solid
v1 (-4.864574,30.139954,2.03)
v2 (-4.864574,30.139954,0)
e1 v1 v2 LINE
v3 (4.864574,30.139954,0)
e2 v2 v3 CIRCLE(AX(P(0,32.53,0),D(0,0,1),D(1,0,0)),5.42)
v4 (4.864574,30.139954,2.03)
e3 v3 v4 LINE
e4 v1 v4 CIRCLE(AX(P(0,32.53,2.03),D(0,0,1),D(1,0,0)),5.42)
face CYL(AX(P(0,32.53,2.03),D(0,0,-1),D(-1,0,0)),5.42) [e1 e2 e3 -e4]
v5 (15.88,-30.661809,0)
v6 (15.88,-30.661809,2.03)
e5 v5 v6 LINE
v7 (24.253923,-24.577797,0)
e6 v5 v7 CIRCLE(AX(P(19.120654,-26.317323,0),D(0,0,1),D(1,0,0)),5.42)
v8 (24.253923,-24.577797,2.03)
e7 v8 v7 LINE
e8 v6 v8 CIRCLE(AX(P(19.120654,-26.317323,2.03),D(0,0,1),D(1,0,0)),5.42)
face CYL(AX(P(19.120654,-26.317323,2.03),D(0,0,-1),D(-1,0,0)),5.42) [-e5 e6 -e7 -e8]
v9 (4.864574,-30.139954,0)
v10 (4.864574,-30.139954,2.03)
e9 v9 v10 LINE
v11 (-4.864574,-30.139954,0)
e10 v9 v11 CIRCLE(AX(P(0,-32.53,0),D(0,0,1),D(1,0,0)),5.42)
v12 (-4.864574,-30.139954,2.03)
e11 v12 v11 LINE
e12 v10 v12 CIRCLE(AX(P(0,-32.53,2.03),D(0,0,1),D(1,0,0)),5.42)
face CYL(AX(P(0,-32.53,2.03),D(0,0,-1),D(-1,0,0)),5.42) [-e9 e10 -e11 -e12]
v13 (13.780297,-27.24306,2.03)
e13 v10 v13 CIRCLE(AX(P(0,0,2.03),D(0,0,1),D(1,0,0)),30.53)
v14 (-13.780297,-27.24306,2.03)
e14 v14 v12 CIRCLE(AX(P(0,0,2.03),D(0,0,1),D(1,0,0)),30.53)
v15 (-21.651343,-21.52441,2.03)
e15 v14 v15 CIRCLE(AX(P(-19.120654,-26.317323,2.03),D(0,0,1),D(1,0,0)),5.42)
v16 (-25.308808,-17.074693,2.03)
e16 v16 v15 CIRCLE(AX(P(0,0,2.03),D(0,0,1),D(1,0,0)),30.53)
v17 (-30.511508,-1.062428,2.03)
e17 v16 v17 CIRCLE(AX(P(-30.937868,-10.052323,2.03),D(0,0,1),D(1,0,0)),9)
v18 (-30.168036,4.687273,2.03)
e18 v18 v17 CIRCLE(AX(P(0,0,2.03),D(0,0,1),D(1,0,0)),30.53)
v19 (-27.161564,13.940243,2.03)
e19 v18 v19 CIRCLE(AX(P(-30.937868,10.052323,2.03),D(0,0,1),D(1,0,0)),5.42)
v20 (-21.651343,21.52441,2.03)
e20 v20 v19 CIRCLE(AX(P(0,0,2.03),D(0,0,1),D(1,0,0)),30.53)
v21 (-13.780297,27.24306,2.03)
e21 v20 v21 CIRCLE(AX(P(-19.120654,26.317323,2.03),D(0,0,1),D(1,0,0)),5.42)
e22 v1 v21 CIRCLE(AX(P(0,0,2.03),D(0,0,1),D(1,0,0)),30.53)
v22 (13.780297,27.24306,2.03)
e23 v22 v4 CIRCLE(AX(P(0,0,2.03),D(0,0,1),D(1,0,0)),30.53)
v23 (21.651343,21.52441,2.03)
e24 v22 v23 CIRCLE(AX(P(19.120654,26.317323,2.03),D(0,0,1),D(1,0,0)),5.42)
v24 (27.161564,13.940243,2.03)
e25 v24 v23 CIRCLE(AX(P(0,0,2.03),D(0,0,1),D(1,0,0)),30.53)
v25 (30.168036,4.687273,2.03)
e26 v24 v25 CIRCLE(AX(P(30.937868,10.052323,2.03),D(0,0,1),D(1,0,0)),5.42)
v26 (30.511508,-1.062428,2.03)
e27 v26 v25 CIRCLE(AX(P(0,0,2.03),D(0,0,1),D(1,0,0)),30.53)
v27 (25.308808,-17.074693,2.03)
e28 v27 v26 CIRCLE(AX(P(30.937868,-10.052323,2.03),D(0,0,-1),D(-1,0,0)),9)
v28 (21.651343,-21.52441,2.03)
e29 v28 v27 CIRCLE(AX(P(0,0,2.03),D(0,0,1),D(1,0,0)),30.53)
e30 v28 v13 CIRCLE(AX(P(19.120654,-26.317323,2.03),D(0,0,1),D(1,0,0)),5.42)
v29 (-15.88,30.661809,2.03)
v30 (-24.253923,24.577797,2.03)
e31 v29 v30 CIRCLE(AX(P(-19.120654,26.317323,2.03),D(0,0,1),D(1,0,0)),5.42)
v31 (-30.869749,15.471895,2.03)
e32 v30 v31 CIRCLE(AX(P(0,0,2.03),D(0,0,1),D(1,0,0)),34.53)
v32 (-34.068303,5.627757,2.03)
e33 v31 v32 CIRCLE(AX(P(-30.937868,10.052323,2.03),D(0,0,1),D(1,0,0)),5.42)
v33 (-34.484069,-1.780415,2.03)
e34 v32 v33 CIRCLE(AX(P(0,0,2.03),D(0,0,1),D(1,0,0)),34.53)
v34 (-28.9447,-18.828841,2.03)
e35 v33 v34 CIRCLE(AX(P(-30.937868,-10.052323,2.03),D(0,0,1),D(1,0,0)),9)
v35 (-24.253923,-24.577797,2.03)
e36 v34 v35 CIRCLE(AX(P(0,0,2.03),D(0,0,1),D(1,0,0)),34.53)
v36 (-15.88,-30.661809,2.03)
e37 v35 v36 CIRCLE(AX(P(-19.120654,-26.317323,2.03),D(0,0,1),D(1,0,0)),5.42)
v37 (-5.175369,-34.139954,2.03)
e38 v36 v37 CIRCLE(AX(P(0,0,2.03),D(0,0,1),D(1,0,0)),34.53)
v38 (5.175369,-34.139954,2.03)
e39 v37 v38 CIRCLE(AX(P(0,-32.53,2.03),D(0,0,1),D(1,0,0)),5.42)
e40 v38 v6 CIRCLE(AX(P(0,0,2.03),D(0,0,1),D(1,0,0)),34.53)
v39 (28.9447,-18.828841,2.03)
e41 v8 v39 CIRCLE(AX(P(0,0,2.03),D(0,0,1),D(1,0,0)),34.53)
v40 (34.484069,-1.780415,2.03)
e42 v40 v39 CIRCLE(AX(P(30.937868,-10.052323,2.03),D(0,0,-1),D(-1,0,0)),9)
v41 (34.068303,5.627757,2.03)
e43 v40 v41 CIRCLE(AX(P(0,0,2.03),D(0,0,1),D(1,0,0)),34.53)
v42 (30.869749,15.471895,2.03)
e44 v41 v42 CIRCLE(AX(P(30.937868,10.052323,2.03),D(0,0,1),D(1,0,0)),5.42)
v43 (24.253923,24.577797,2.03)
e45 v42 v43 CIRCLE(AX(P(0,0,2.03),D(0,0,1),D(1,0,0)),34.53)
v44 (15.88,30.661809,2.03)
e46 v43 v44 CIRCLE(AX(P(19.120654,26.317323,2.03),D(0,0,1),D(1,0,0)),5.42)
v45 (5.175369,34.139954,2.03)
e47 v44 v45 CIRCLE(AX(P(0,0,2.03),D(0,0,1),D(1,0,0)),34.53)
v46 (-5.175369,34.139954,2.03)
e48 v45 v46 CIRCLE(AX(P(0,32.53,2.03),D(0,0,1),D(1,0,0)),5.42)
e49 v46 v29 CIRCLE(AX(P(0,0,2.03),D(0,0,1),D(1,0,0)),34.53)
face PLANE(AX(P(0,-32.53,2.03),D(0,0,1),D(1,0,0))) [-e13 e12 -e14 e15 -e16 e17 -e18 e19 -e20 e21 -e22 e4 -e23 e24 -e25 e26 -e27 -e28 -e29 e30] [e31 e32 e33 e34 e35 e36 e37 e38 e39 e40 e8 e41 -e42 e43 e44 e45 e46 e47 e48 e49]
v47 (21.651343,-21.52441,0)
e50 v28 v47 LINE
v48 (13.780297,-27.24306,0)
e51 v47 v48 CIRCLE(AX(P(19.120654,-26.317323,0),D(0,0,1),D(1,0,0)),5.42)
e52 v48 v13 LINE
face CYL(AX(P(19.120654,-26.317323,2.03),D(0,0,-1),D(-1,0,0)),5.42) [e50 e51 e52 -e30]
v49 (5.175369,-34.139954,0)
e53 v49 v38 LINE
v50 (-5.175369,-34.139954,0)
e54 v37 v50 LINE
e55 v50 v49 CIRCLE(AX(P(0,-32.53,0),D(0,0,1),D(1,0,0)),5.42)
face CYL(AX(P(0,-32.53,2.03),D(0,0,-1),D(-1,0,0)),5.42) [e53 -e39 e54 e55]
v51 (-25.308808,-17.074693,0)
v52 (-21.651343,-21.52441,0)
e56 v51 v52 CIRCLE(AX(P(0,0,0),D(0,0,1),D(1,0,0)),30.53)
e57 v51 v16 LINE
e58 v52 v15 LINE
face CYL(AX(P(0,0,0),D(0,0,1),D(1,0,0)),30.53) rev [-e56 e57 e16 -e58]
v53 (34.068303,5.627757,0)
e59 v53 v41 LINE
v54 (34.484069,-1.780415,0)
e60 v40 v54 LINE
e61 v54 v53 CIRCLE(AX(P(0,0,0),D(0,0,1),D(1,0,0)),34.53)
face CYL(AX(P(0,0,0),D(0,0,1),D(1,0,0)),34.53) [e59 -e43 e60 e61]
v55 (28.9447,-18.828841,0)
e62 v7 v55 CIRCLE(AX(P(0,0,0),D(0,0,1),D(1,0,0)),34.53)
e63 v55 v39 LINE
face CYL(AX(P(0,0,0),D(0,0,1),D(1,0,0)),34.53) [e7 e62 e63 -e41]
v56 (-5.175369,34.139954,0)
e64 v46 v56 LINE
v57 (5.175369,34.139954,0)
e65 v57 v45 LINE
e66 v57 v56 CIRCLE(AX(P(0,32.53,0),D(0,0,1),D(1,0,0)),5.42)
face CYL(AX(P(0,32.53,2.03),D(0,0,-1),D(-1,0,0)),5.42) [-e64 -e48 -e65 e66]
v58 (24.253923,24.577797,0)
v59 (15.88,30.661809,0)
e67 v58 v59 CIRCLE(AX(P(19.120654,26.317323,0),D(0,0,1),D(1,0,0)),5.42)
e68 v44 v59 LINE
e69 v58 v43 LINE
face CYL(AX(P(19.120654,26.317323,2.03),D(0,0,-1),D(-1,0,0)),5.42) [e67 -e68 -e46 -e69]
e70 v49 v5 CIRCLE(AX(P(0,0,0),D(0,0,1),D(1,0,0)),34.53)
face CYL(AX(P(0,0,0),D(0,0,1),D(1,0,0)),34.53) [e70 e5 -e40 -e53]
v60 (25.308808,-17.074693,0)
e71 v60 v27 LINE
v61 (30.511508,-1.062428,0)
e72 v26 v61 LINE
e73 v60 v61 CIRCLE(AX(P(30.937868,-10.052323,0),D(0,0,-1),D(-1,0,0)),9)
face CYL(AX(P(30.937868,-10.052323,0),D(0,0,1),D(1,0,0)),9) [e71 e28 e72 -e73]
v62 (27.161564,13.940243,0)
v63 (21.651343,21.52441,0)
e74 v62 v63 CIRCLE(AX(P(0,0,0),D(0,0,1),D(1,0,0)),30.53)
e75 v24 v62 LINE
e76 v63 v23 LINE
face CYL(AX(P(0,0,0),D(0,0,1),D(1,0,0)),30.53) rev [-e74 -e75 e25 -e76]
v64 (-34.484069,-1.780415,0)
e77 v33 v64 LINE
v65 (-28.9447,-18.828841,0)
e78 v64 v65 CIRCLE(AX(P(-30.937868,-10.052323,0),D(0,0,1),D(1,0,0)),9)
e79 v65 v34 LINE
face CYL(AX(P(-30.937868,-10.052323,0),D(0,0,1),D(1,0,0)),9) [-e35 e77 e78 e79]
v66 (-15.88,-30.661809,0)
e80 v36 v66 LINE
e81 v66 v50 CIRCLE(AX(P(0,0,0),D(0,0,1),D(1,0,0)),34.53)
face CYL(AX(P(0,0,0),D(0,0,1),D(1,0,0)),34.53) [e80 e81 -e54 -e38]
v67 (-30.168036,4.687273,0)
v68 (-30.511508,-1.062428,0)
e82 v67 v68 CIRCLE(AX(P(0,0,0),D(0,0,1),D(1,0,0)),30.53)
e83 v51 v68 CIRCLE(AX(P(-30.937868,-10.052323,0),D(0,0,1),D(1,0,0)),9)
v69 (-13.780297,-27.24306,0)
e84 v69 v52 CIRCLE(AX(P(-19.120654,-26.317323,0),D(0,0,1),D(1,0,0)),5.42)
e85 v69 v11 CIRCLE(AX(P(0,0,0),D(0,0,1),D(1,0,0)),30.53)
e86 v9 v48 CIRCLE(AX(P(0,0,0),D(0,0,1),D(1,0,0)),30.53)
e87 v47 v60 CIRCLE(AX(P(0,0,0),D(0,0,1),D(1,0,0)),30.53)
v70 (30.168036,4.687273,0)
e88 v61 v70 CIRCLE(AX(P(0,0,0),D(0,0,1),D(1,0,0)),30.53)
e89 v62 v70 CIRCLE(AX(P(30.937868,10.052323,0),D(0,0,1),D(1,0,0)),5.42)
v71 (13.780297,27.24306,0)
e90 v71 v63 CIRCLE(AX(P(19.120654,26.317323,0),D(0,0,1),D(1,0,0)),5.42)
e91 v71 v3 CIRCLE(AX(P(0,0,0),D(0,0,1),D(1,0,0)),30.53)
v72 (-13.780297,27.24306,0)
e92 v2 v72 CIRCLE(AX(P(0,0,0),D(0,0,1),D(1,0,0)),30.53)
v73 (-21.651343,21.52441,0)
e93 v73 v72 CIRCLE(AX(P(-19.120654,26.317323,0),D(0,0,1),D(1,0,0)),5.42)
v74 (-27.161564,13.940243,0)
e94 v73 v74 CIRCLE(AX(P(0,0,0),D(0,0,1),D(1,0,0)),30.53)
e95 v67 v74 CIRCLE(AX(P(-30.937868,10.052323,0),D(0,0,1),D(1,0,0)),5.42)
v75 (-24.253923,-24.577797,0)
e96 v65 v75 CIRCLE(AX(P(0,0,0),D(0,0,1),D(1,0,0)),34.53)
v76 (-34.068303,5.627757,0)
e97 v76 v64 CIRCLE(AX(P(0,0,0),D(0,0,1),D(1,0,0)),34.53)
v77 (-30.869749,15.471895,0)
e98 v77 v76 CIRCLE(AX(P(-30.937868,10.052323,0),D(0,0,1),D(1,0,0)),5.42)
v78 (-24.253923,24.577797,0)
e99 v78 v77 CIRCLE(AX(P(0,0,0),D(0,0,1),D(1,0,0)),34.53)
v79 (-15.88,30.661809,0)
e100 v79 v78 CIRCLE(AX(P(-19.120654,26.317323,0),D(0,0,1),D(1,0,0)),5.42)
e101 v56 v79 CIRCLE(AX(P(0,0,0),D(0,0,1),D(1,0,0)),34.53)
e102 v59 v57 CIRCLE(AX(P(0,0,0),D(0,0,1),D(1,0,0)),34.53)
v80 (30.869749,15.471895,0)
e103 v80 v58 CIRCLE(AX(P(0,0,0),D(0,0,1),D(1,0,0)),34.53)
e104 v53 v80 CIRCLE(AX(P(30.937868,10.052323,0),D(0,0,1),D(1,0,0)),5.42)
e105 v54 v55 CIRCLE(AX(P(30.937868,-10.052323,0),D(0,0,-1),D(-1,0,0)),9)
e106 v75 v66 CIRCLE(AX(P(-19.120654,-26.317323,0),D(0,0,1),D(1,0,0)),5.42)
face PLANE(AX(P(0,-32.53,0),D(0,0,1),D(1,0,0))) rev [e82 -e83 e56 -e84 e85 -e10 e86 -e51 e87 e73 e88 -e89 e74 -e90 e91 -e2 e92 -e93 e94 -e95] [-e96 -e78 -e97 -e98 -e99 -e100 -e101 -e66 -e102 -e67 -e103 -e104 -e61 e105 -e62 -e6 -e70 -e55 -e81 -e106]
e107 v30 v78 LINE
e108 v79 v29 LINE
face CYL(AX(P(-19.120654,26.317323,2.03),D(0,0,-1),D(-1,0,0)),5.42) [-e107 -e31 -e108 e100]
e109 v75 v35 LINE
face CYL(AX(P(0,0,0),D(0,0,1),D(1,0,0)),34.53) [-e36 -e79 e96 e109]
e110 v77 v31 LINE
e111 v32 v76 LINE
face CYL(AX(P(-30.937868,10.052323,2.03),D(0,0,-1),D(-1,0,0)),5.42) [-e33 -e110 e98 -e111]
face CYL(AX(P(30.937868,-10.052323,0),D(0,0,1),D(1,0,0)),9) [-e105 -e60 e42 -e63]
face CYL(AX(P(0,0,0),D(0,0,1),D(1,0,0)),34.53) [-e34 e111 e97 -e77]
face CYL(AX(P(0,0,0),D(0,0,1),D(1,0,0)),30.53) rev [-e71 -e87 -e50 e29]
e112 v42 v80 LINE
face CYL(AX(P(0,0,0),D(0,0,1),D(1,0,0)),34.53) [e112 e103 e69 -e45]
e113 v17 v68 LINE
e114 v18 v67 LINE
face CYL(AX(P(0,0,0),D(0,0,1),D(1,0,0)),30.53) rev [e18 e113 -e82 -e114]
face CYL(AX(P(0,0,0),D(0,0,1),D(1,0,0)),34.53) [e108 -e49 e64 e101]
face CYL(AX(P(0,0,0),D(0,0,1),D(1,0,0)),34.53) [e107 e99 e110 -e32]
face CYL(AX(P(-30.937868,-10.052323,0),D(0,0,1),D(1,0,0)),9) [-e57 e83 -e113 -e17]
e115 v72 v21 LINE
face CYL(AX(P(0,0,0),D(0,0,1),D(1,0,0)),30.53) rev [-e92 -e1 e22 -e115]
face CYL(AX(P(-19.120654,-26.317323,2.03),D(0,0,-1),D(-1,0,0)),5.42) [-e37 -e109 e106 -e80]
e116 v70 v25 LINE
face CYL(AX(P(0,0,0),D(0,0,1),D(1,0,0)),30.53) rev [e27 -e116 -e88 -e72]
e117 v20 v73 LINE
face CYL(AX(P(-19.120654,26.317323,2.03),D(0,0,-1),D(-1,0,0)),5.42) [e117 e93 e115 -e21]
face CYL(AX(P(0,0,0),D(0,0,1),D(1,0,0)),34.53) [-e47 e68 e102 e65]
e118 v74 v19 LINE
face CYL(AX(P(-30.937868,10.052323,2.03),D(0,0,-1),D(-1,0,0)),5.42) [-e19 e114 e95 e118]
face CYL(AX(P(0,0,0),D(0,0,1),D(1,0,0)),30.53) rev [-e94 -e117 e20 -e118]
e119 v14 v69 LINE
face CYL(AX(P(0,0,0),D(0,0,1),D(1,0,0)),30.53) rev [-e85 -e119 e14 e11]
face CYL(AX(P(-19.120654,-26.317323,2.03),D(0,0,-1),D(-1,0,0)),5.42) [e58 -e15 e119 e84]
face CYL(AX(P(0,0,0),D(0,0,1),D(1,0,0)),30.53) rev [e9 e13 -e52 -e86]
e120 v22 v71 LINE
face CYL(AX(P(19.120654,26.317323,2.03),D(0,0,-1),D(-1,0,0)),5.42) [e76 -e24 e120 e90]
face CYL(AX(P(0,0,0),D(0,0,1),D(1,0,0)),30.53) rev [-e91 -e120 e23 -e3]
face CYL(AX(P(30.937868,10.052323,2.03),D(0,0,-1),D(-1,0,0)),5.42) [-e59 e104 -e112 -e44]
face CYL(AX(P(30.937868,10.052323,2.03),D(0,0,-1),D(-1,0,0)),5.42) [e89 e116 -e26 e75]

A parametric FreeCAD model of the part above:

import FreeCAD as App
import Part
import Sketcher
Q = App.Units.Quantity

doc = App.newDocument("Part")
body = doc.addObject("PartDesign::Body", "Body")

# Sketch on XY plane
sketch1 = doc.addObject("Sketcher::SketchObject", "Sketch")
body.addObject(sketch1)
sketch1.AttachmentSupport = (doc.XY_Plane, [""])
sketch1.MapMode = "FlatFace"
sketch1.addGeometry(Part.Circle(App.Vector(0, -33, 0), App.Vector(0, 0, 1), 5), False)
sketch1.addConstraint(Sketcher.Constraint("PointOnObject", 0, 3, -2))
sketch1.addConstraint(Sketcher.Constraint("Diameter", 0, Q("10.84 mm")))
sketch1.addConstraint(Sketcher.Constraint("DistanceY", 0, 3, -1, 1, Q("32.53 mm")))
pad1 = doc.addObject("PartDesign::Pad", "Pad")
body.addObject(pad1)
pad1.Profile = sketch1
pad1.Length = 2.03
body2 = doc.addObject("PartDesign::Body", "Body001")

# Sketch on XY plane
sketch2 = doc.addObject("Sketcher::SketchObject", "Sketch001")
body2.addObject(sketch2)
sketch2.AttachmentSupport = (doc.getObject("XY_Plane001"), [""])
sketch2.MapMode = "FlatFace"
sketch2.addGeometry(Part.Circle(App.Vector(-19, -26, 0), App.Vector(0, 0, 1), 5), False)
sketch2.addConstraint(Sketcher.Constraint("Diameter", 0, Q("10.84 mm")))
sketch2.addConstraint(Sketcher.Constraint("DistanceX", 0, 3, -1, 1, Q("19.120654 mm")))
sketch2.addConstraint(Sketcher.Constraint("DistanceY", 0, 3, -1, 1, Q("26.317323 mm")))
pad2 = doc.addObject("PartDesign::Pad", "Pad001")
body2.addObject(pad2)
pad2.Profile = sketch2
pad2.Length = 2.03
body3 = doc.addObject("PartDesign::Body", "Body002")

# Sketch on XY plane
sketch3 = doc.addObject("Sketcher::SketchObject", "Sketch002")
body3.addObject(sketch3)
sketch3.AttachmentSupport = (doc.getObject("XY_Plane002"), [""])
sketch3.MapMode = "FlatFace"
sketch3.addGeometry(Part.Circle(App.Vector(-31, -10, 0), App.Vector(0, 0, 1), 5), False)
sketch3.addConstraint(Sketcher.Constraint("Diameter", 0, Q("10.84 mm")))
sketch3.addConstraint(Sketcher.Constraint("DistanceX", 0, 3, -1, 1, Q("30.937868 mm")))
sketch3.addConstraint(Sketcher.Constraint("DistanceY", 0, 3, -1, 1, Q("10.052323 mm")))
pad3 = doc.addObject("PartDesign::Pad", "Pad002")
body3.addObject(pad3)
pad3.Profile = sketch3
pad3.Length = 2.03
body4 = doc.addObject("PartDesign::Body", "Body003")

# Sketch on XY plane
sketch4 = doc.addObject("Sketcher::SketchObject", "Sketch003")
body4.addObject(sketch4)
sketch4.AttachmentSupport = (doc.getObject("XY_Plane003"), [""])
sketch4.MapMode = "FlatFace"
sketch4.addGeometry(Part.Circle(App.Vector(-31, 10, 0), App.Vector(0, 0, 1), 5), False)
sketch4.addConstraint(Sketcher.Constraint("Diameter", 0, Q("10.84 mm")))
sketch4.addConstraint(Sketcher.Constraint("DistanceX", 0, 3, -1, 1, Q("30.937868 mm")))
sketch4.addConstraint(Sketcher.Constraint("DistanceY", -1, 1, 0, 3, Q("10.052323 mm")))
pad4 = doc.addObject("PartDesign::Pad", "Pad003")
body4.addObject(pad4)
pad4.Profile = sketch4
pad4.Length = 2.03
body5 = doc.addObject("PartDesign::Body", "Body004")

# Sketch on XY plane
sketch5 = doc.addObject("Sketcher::SketchObject", "Sketch004")
body5.addObject(sketch5)
sketch5.AttachmentSupport = (doc.getObject("XY_Plane004"), [""])
sketch5.MapMode = "FlatFace"
sketch5.addGeometry(Part.Circle(App.Vector(-19, 26, 0), App.Vector(0, 0, 1), 5), False)
sketch5.addConstraint(Sketcher.Constraint("Diameter", 0, Q("10.84 mm")))
sketch5.addConstraint(Sketcher.Constraint("DistanceX", 0, 3, -1, 1, Q("19.120654 mm")))
sketch5.addConstraint(Sketcher.Constraint("DistanceY", -1, 1, 0, 3, Q("26.317323 mm")))
pad5 = doc.addObject("PartDesign::Pad", "Pad004")
body5.addObject(pad5)
pad5.Profile = sketch5
pad5.Length = 2.03
body6 = doc.addObject("PartDesign::Body", "Body005")

# Sketch on XY plane
sketch6 = doc.addObject("Sketcher::SketchObject", "Sketch005")
body6.addObject(sketch6)
sketch6.AttachmentSupport = (doc.getObject("XY_Plane005"), [""])
sketch6.MapMode = "FlatFace"
sketch6.addGeometry(Part.Circle(App.Vector(0, 33, 0), App.Vector(0, 0, 1), 5), False)
sketch6.addConstraint(Sketcher.Constraint("PointOnObject", 0, 3, -2))
sketch6.addConstraint(Sketcher.Constraint("Diameter", 0, Q("10.84 mm")))
sketch6.addConstraint(Sketcher.Constraint("DistanceY", -1, 1, 0, 3, Q("32.53 mm")))
pad6 = doc.addObject("PartDesign::Pad", "Pad005")
body6.addObject(pad6)
pad6.Profile = sketch6
pad6.Length = 2.03
body7 = doc.addObject("PartDesign::Body", "Body006")

# Sketch on XY plane
sketch7 = doc.addObject("Sketcher::SketchObject", "Sketch006")
body7.addObject(sketch7)
sketch7.AttachmentSupport = (doc.getObject("XY_Plane006"), [""])
sketch7.MapMode = "FlatFace"
sketch7.addGeometry(Part.Circle(App.Vector(19, 26, 0), App.Vector(0, 0, 1), 5), False)
sketch7.addConstraint(Sketcher.Constraint("Diameter", 0, Q("10.84 mm")))
sketch7.addConstraint(Sketcher.Constraint("DistanceX", -1, 1, 0, 3, Q("19.120654 mm")))
sketch7.addConstraint(Sketcher.Constraint("DistanceY", -1, 1, 0, 3, Q("26.317323 mm")))
pad7 = doc.addObject("PartDesign::Pad", "Pad006")
body7.addObject(pad7)
pad7.Profile = sketch7
pad7.Length = 2.03
body8 = doc.addObject("PartDesign::Body", "Body007")

# Sketch on XY plane
sketch8 = doc.addObject("Sketcher::SketchObject", "Sketch007")
body8.addObject(sketch8)
sketch8.AttachmentSupport = (doc.getObject("XY_Plane007"), [""])
sketch8.MapMode = "FlatFace"
sketch8.addGeometry(Part.Circle(App.Vector(31, 10, 0), App.Vector(0, 0, 1), 5), False)
sketch8.addConstraint(Sketcher.Constraint("Diameter", 0, Q("10.84 mm")))
sketch8.addConstraint(Sketcher.Constraint("DistanceX", -1, 1, 0, 3, Q("30.937868 mm")))
sketch8.addConstraint(Sketcher.Constraint("DistanceY", -1, 1, 0, 3, Q("10.052323 mm")))
pad8 = doc.addObject("PartDesign::Pad", "Pad007")
body8.addObject(pad8)
pad8.Profile = sketch8
pad8.Length = 2.03
body9 = doc.addObject("PartDesign::Body", "Body008")

# Sketch on XY plane
sketch9 = doc.addObject("Sketcher::SketchObject", "Sketch008")
body9.addObject(sketch9)
sketch9.AttachmentSupport = (doc.getObject("XY_Plane008"), [""])
sketch9.MapMode = "FlatFace"
sketch9.addGeometry(Part.Circle(App.Vector(31, -10, 0), App.Vector(0, 0, 1), 5), False)
sketch9.addConstraint(Sketcher.Constraint("Diameter", 0, Q("10.84 mm")))
sketch9.addConstraint(Sketcher.Constraint("DistanceX", -1, 1, 0, 3, Q("30.937868 mm")))
sketch9.addConstraint(Sketcher.Constraint("DistanceY", 0, 3, -1, 1, Q("10.052323 mm")))
pad9 = doc.addObject("PartDesign::Pad", "Pad008")
body9.addObject(pad9)
pad9.Profile = sketch9
pad9.Length = 2.03
body10 = doc.addObject("PartDesign::Body", "Body009")

# Sketch on XY plane
sketch10 = doc.addObject("Sketcher::SketchObject", "Sketch009")
body10.addObject(sketch10)
sketch10.AttachmentSupport = (doc.getObject("XY_Plane009"), [""])
sketch10.MapMode = "FlatFace"
sketch10.addGeometry(Part.Circle(App.Vector(19, -26, 0), App.Vector(0, 0, 1), 5), False)
sketch10.addConstraint(Sketcher.Constraint("Diameter", 0, Q("10.84 mm")))
sketch10.addConstraint(Sketcher.Constraint("DistanceX", -1, 1, 0, 3, Q("19.120654 mm")))
sketch10.addConstraint(Sketcher.Constraint("DistanceY", 0, 3, -1, 1, Q("26.317323 mm")))
pad10 = doc.addObject("PartDesign::Pad", "Pad009")
body10.addObject(pad10)
pad10.Profile = sketch10
pad10.Length = 2.03
body.AllowCompound = True
doc.recompute()

boolean = doc.addObject("PartDesign::Boolean", "Boolean")
body.addObject(boolean)
boolean.Type = "Fuse"
boolean.addObjects([body2])
doc.recompute()

boolean2 = doc.addObject("PartDesign::Boolean", "Boolean001")
body.addObject(boolean2)
boolean2.Type = "Fuse"
boolean2.addObjects([body3])
doc.recompute()

boolean3 = doc.addObject("PartDesign::Boolean", "Boolean002")
body.addObject(boolean3)
boolean3.Type = "Fuse"
boolean3.addObjects([body4])
doc.recompute()

boolean4 = doc.addObject("PartDesign::Boolean", "Boolean003")
body.addObject(boolean4)
boolean4.Type = "Fuse"
boolean4.addObjects([body5])
doc.recompute()

boolean5 = doc.addObject("PartDesign::Boolean", "Boolean004")
body.addObject(boolean5)
boolean5.Type = "Fuse"
boolean5.addObjects([body6])
doc.recompute()

boolean6 = doc.addObject("PartDesign::Boolean", "Boolean005")
body.addObject(boolean6)
boolean6.Type = "Fuse"
boolean6.addObjects([body7])
doc.recompute()

boolean7 = doc.addObject("PartDesign::Boolean", "Boolean006")
body.addObject(boolean7)
boolean7.Type = "Fuse"
boolean7.addObjects([body8])
doc.recompute()

boolean8 = doc.addObject("PartDesign::Boolean", "Boolean007")
body.addObject(boolean8)
boolean8.Type = "Fuse"
boolean8.addObjects([body9])
doc.recompute()

boolean9 = doc.addObject("PartDesign::Boolean", "Boolean008")
body.addObject(boolean9)
boolean9.Type = "Fuse"
boolean9.addObjects([body10])

# Sketch on XY plane
sketch11 = doc.addObject("Sketcher::SketchObject", "Sketch010")
body.addObject(sketch11)
sketch11.AttachmentSupport = (doc.XY_Plane, [""])
sketch11.MapMode = "FlatFace"
sketch11.AttachmentOffset = App.Placement(App.Vector(0, 0, 2.03), App.Rotation())
sketch11.addGeometry(Part.Circle(App.Vector(0, 0, 0), App.Vector(0, 0, 1), 35), False)
sketch11.addGeometry(Part.Circle(App.Vector(0, 0, 0), App.Vector(0, 0, 1), 31), False)
sketch11.addConstraint(Sketcher.Constraint("Coincident", 0, 3, -1, 1))
sketch11.addConstraint(Sketcher.Constraint("Coincident", 1, 3, -1, 1))
sketch11.addConstraint(Sketcher.Constraint("Diameter", 0, Q("69.06 mm")))
sketch11.addConstraint(Sketcher.Constraint("Diameter", 1, Q("61.06 mm")))
pad11 = doc.addObject("PartDesign::Pad", "Pad010")
body.addObject(pad11)
pad11.Profile = sketch11
pad11.Length = 2.03
pad11.Reversed = True

# Sketch on XY plane
sketch12 = doc.addObject("Sketcher::SketchObject", "Sketch011")
body.addObject(sketch12)
sketch12.AttachmentSupport = (doc.XY_Plane, [""])
sketch12.MapMode = "FlatFace"
sketch12.AttachmentOffset = App.Placement(App.Vector(0, 0, 2.03), App.Rotation())
sketch12.addGeometry(Part.Circle(App.Vector(-31, -10, 0), App.Vector(0, 0, 1), 9), False)
sketch12.addConstraint(Sketcher.Constraint("Diameter", 0, Q("18 mm")))
sketch12.addConstraint(Sketcher.Constraint("DistanceX", 0, 3, -1, 1, Q("30.937868 mm")))
sketch12.addConstraint(Sketcher.Constraint("DistanceY", 0, 3, -1, 1, Q("10.052323 mm")))
pad12 = doc.addObject("PartDesign::Pad", "Pad011")
body.addObject(pad12)
pad12.Profile = sketch12
pad12.Length = 2.03
pad12.Reversed = True
doc.recompute()

mirrored = doc.addObject("PartDesign::Mirrored", "Mirrored")
body.addObject(mirrored)
mirrored.Originals = [pad12]
mirrored.MirrorPlane = (doc.YZ_Plane, [""])
body.Tip = mirrored

doc.recompute()
